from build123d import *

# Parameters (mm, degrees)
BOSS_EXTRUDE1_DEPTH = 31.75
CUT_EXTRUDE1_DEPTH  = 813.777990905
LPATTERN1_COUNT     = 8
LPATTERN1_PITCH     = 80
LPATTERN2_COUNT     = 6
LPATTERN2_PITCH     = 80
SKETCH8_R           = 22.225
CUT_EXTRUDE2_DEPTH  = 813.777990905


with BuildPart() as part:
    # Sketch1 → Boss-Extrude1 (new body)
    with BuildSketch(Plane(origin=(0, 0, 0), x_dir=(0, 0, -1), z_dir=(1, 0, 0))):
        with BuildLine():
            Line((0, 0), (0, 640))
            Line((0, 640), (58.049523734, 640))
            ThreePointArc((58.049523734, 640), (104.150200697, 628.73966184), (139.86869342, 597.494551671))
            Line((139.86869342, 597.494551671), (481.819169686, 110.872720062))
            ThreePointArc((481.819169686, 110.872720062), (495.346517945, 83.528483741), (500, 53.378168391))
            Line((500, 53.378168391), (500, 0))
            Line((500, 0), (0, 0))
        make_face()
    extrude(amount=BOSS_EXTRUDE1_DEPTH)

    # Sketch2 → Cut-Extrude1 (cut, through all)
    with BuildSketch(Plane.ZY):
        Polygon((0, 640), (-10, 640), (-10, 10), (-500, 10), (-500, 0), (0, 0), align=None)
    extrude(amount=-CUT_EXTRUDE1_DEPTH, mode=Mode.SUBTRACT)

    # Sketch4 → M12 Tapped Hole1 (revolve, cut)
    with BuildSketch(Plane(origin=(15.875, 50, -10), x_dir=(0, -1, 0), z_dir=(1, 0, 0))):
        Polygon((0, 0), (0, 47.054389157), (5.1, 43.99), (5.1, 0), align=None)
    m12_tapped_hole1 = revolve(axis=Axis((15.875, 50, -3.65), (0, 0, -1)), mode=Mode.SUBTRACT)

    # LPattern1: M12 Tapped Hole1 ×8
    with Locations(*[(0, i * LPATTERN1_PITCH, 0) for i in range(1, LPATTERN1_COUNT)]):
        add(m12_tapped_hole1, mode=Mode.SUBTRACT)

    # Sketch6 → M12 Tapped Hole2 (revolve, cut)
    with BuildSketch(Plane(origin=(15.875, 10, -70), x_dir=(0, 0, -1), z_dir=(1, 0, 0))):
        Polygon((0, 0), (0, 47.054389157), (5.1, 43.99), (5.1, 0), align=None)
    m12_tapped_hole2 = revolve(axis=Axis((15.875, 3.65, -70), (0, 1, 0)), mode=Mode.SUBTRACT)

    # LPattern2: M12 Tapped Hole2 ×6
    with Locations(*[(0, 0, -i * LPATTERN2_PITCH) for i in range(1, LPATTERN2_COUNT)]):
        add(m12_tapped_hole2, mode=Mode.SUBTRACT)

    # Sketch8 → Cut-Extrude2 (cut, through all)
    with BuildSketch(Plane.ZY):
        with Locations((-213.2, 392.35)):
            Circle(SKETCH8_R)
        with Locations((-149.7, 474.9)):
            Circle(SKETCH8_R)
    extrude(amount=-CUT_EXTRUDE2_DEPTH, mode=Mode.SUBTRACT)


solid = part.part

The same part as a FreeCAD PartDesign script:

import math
import FreeCAD as App
import Part
import Sketcher

V = App.Vector
Q = App.Units.Quantity


def add_polygon(sketch, points):
    """Adds a closed chain of lines whose ends are joined by coincident constraints."""
    first, n = sketch.GeometryCount, len(points)
    for a, b in zip(points, points[1:] + points[:1]):
        sketch.addGeometry(Part.LineSegment(App.Vector(*a, 0), App.Vector(*b, 0)), False)
    for i in range(n):
        sketch.addConstraint(Sketcher.Constraint("Coincident", first + i, 2, first + (i + 1) % n, 1))

doc = App.newDocument("Part")
body = doc.addObject("PartDesign::Body", "Body")

# Sketch on YZ plane
sketch1 = body.newObject("Sketcher::SketchObject", "Sketch")
sketch1.AttachmentSupport = (doc.getObject("YZ_Plane"), [""])
sketch1.MapMode = "FlatFace"
sketch1.addGeometry([
    Part.LineSegment(V(640, 0, 0), V(0, 0, 0)),  # 0
    Part.LineSegment(V(0, 0, 0), V(0, -500, 0)),  # 1
    Part.LineSegment(V(0, -500, 0), V(53.378168, -500, 0)),  # 2
    Part.ArcOfCircle(Part.Circle(V(53.378168, -400, 0), V(0, 0, 1), 100), math.radians(-90), math.radians(-54.904183)),  # 3
    Part.LineSegment(V(110.87272, -481.81917, 0), V(597.494552, -139.868693, 0)),  # 4
    Part.ArcOfCircle(Part.Circle(V(540, -58.049524, 0), V(0, 0, 1), 100), math.radians(-54.904183), math.radians(0)),  # 5
    Part.LineSegment(V(640, -58.049524, 0), V(640, 0, 0)),  # 6
], False)
sketch1.addConstraint([
    Sketcher.Constraint("Coincident", 0, 2, 1, 1),
    Sketcher.Constraint("Coincident", 1, 2, 2, 1),
    Sketcher.Constraint("Tangent", 2, 2, 3, 1),
    Sketcher.Constraint("Tangent", 3, 2, 4, 1),
    Sketcher.Constraint("Tangent", 4, 2, 5, 1),
    Sketcher.Constraint("Tangent", 5, 2, 6, 1),
    Sketcher.Constraint("Coincident", 6, 2, 0, 1),
    Sketcher.Constraint("Horizontal", 0),
    Sketcher.Constraint("Vertical", 1),
    Sketcher.Constraint("Horizontal", 2),
    Sketcher.Constraint("Vertical", 6),
    Sketcher.Constraint("Coincident", 0, 2, -1, 1),
    Sketcher.Constraint("Equal", 3, 5),
    Sketcher.Constraint("Radius", 3, 100.0),
    Sketcher.Constraint("DistanceX", 0, 2, 0, 1, 640.0),
    Sketcher.Constraint("DistanceY", 1, 2, 1, 1, 500.0),
    Sketcher.Constraint("DistanceX", 2, 1, 2, 2, 53.378168),
    Sketcher.Constraint("DistanceY", 6, 1, 6, 2, 58.049524),
])
pad1 = body.newObject("PartDesign::Pad", "Pad")
pad1.Profile = sketch1
pad1.Length = 31.75

# Sketch on YZ plane
sketch2 = body.newObject("Sketcher::SketchObject", "Sketch001")
sketch2.AttachmentSupport = (doc.getObject("YZ_Plane"), [""])
sketch2.MapMode = "FlatFace"
add_polygon(sketch2, [(640, 0), (640, -10), (10, -10), (10, -500), (0, -500), (0, 0)])  # lines 0-5
sketch2.addConstraint([
    Sketcher.Constraint("Vertical", 0),
    Sketcher.Constraint("Horizontal", 1),
    Sketcher.Constraint("Vertical", 2),
    Sketcher.Constraint("Horizontal", 3),
    Sketcher.Constraint("Vertical", 4),
    Sketcher.Constraint("Horizontal", 5),
    Sketcher.Constraint("Coincident", 4, 2, -1, 1),
    Sketcher.Constraint("Equal", 3, 0),
    Sketcher.Constraint("DistanceX", 1, 2, 1, 1, 630.0),
    Sketcher.Constraint("DistanceX", 3, 2, 3, 1, 10.0),
    Sketcher.Constraint("DistanceY", 2, 2, 2, 1, 490.0),
])
pocket1 = body.newObject("PartDesign::Pocket", "Pocket")
pocket1.Profile = sketch2
pocket1.Type = "ThroughAll"
pocket1.Reversed = True

# Sketch on YZ plane
sketch3 = body.newObject("Sketcher::SketchObject", "Sketch002")
sketch3.AttachmentSupport = (doc.getObject("YZ_Plane"), [""])
sketch3.MapMode = "FlatFace"
sketch3.AttachmentOffset = App.Placement(V(0, 0, 15.875), App.Rotation())
add_polygon(sketch3, [(50, -57.054389), (50, -10), (44.9, -10), (44.9, -53.99)])  # lines 0-3
sketch3.addGeometry(Part.LineSegment(V(50, -10, 0), V(50, -57.054389, 0)), True)  # axis
sketch3.addConstraint([
    Sketcher.Constraint("Vertical", 0),
    Sketcher.Constraint("Horizontal", 1),
    Sketcher.Constraint("Vertical", 2),
    Sketcher.Constraint("Vertical", 4),
    Sketcher.Constraint("Coincident", 4, 1, 0, 2),
    Sketcher.Constraint("Equal", 0, 4),
    Sketcher.Constraint("Angle", 3, Q("-31 deg")),
    Sketcher.Constraint("DistanceX", 1, 2, 1, 1, 5.1),
    Sketcher.Constraint("DistanceX", -1, 1, 0, 2, 50.0),
    Sketcher.Constraint("DistanceY", 0, 2, -1, 1, 10.0),
    Sketcher.Constraint("DistanceY", 2, 2, 2, 1, 43.99),
])
groove = body.newObject("PartDesign::Groove", "Groove")
groove.Profile = sketch3
groove.ReferenceAxis = (sketch3, ["Axis0"])
groove.Angle = 360
doc.recompute()

linearpattern = body.newObject("PartDesign::LinearPattern", "LinearPattern")
linearpattern.Originals = [groove]
linearpattern.Direction = (doc.getObject("Y_Axis"), [""])
linearpattern.Mode = "offset"
linearpattern.Offset = 80
linearpattern.Occurrences = 8
body.Tip = linearpattern

# Sketch on YZ plane
sketch4 = body.newObject("Sketcher::SketchObject", "Sketch003")
sketch4.AttachmentSupport = (doc.getObject("YZ_Plane"), [""])
sketch4.MapMode = "FlatFace"
sketch4.AttachmentOffset = App.Placement(V(0, 0, 15.875), App.Rotation())
add_polygon(sketch4, [(57.054389, -70), (10, -70), (10, -75.1), (53.99, -75.1)])  # lines 0-3
sketch4.addGeometry(Part.LineSegment(V(10, -70, 0), V(57.054389, -70, 0)), True)  # axis
sketch4.addConstraint([
    Sketcher.Constraint("Horizontal", 0),
    Sketcher.Constraint("Vertical", 1),
    Sketcher.Constraint("Horizontal", 2),
    Sketcher.Constraint("Horizontal", 4),
    Sketcher.Constraint("Coincident", 4, 1, 0, 2),
    Sketcher.Constraint("Equal", 0, 4),
    Sketcher.Constraint("Angle", 3, Q("59 deg")),
    Sketcher.Constraint("DistanceY", 1, 2, 1, 1, 5.1),
    Sketcher.Constraint("DistanceX", -1, 1, 0, 2, 10.0),
    Sketcher.Constraint("DistanceY", 0, 2, -1, 1, 70.0),
    Sketcher.Constraint("DistanceX", 2, 1, 2, 2, 43.99),
])
groove2 = body.newObject("PartDesign::Groove", "Groove001")
groove2.Profile = sketch4
groove2.ReferenceAxis = (sketch4, ["Axis0"])
groove2.Angle = 360
doc.recompute()

linearpattern2 = body.newObject("PartDesign::LinearPattern", "LinearPattern001")
linearpattern2.Originals = [groove2]
linearpattern2.Direction = (doc.getObject("Z_Axis"), [""])
linearpattern2.Mode = "offset"
linearpattern2.Offset = 80
linearpattern2.Occurrences = 6
linearpattern2.Reversed = True
body.Tip = linearpattern2

# Sketch on YZ plane
sketch5 = body.newObject("Sketcher::SketchObject", "Sketch004")
sketch5.AttachmentSupport = (doc.getObject("YZ_Plane"), [""])
sketch5.MapMode = "FlatFace"
sketch5.addGeometry([
    Part.Circle(V(392.35, -213.2, 0), V(0, 0, 1), 22.225),
    Part.Circle(V(474.9, -149.7, 0), V(0, 0, 1), 22.225),
], False)
sketch5.addConstraint([
    Sketcher.Constraint("Equal", 0, 1),
    Sketcher.Constraint("Diameter", 0, 44.45),
    Sketcher.Constraint("DistanceY", 0, 3, -1, 1, 213.2),
    Sketcher.Constraint("DistanceX", -1, 1, 1, 3, 474.9),
    Sketcher.Constraint("DistanceY", 1, 3, -1, 1, 149.7),
    Sketcher.Constraint("DistanceX", -1, 1, 0, 3, 392.35),
])
pocket2 = body.newObject("PartDesign::Pocket", "Pocket001")
pocket2.Profile = sketch5
pocket2.Type = "ThroughAll"
pocket2.Reversed = True

doc.recompute()
